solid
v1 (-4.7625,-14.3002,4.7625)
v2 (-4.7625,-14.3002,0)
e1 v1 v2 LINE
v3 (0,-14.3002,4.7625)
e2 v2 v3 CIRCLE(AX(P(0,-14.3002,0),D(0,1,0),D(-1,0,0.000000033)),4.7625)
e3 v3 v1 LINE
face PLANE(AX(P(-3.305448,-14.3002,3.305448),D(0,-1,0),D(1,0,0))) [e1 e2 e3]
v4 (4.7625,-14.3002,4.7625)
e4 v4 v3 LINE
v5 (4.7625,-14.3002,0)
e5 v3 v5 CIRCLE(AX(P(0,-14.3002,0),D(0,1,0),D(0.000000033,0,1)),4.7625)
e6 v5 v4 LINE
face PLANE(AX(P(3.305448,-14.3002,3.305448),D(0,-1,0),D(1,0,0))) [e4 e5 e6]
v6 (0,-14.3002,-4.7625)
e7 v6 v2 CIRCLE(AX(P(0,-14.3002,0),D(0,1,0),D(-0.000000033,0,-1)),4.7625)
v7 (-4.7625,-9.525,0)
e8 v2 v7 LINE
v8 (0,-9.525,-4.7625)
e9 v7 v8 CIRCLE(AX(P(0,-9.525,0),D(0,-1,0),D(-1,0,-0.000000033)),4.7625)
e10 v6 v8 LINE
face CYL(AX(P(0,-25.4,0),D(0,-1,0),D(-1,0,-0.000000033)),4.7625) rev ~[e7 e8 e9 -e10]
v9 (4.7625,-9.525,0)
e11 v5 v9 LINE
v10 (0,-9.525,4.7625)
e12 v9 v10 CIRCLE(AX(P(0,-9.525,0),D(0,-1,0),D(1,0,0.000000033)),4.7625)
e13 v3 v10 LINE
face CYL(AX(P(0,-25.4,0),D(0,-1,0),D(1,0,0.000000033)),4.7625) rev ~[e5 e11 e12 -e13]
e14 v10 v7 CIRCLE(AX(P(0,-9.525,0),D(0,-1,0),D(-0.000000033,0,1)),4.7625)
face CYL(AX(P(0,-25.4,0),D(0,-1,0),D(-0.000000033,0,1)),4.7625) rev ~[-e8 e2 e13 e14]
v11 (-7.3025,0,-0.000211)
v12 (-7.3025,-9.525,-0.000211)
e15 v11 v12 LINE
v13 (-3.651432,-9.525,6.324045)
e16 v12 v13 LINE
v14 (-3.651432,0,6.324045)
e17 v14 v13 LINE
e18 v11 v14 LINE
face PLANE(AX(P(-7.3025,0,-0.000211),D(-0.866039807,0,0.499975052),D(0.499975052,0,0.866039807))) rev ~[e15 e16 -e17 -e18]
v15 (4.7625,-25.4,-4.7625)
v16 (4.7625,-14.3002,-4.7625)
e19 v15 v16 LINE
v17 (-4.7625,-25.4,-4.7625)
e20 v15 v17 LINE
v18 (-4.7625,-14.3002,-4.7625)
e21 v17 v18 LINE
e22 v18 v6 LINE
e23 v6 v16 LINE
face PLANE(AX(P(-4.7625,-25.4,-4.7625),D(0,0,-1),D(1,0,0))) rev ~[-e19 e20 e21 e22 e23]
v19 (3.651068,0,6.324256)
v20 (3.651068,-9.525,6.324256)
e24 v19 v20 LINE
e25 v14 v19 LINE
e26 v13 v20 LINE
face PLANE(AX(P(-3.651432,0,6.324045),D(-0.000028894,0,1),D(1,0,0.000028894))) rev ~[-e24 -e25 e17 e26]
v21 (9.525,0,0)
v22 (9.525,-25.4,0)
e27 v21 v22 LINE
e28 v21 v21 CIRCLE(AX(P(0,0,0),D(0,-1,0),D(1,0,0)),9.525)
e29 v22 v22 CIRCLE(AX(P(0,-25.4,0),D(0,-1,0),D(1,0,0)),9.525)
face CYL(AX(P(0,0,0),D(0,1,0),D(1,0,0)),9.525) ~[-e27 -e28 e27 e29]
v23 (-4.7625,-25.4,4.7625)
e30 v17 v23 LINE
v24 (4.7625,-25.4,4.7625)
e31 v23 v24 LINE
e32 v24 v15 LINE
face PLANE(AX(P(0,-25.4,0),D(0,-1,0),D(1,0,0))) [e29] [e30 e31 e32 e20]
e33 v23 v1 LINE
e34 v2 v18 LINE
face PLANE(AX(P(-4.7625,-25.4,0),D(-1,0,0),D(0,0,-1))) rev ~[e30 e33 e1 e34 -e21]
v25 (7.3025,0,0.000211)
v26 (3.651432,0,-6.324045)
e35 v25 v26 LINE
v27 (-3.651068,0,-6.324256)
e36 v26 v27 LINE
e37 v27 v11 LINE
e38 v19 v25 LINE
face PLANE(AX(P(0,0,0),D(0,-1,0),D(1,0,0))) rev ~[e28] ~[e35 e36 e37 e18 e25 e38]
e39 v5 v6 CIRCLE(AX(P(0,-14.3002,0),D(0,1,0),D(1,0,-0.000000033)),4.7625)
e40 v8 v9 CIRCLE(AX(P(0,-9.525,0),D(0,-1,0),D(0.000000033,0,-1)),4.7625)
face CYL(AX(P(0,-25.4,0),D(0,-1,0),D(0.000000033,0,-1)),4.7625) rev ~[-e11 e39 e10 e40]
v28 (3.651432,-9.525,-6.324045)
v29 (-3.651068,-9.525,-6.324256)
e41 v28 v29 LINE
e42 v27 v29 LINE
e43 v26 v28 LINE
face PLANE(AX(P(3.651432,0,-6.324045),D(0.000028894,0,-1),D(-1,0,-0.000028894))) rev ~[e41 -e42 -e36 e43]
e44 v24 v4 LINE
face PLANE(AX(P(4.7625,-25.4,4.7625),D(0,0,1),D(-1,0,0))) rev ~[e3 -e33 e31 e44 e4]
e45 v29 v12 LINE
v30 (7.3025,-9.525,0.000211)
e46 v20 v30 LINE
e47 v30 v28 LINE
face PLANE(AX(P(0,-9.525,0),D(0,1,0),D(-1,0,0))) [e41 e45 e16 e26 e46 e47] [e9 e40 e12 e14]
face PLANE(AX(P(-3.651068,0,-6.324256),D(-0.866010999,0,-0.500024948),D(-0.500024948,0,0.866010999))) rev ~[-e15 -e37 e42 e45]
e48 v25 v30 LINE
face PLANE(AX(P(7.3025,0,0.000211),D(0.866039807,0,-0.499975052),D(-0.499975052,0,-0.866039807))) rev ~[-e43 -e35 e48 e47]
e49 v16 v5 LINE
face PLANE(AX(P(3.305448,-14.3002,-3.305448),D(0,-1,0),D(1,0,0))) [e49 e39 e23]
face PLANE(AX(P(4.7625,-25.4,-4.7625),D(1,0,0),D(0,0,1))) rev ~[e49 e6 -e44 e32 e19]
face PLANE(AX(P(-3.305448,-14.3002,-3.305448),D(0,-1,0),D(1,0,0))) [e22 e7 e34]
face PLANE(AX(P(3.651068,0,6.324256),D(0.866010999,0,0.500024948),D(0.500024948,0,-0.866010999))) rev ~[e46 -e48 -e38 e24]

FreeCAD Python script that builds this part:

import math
import FreeCAD as App
import Part
import Sketcher
Q = App.Units.Quantity


def add_polygon(sketch, points):
    """Adds a closed chain of lines whose ends are joined by coincident constraints."""
    first, n = sketch.GeometryCount, len(points)
    for a, b in zip(points, points[1:] + points[:1]):
        sketch.addGeometry(Part.LineSegment(App.Vector(*a, 0), App.Vector(*b, 0)), False)
    for i in range(n):
        sketch.addConstraint(Sketcher.Constraint("Coincident", first + i, 2, first + (i + 1) % n, 1))

doc = App.newDocument("Part")
params = doc.addObject("Spreadsheet::Sheet", "Params")
for row, (alias, value) in enumerate([
    ("sketch1_diameter", "0.75 in"),
    ("pad1_length", "1 in"),
    ("sketch2_radius", "0.1875 in"),
    ("sketch3_radius", "0.1875 in"),
    ("pocket2_length", "0.437 in"),
    ("pocket3_length", "0.375 in"),
], start=1):
    params.set(f"A{row}", alias)
    params.set(f"B{row}", "=" + value)
    params.setAlias(f"B{row}", alias)

body = doc.addObject("PartDesign::Body", "Body")

sketch1 = body.newObject("Sketcher::SketchObject", "Sketch")
sketch1.AttachmentSupport = (doc.getObject("XZ_Plane"), [""])
sketch1.MapMode = "FlatFace"
sketch1.addGeometry(Part.Circle(App.Vector(0, 0, 0), App.Vector(0, 0, 1), 10), False)
sketch1.addConstraint(Sketcher.Constraint("Coincident", 0, 3, -1, 1))
sketch1.addConstraint(Sketcher.Constraint("Diameter", 0, Q("0.75 in")))
sketch1.setExpression("Constraints[1]", "Params.sketch1_diameter")
pad1 = body.newObject("PartDesign::Pad", "Pad")
pad1.Profile = sketch1
pad1.setExpression("Length", "Params.pad1_length")

sketch2 = body.newObject("Sketcher::SketchObject", "Sketch001")
sketch2.AttachmentSupport = (doc.getObject("XZ_Plane"), [""])
sketch2.MapMode = "FlatFace"
sketch2.AttachmentOffset = App.Placement(App.Vector(0, 0, 1 * 25.4), App.Rotation())
sketch2.addGeometry(Part.ArcOfCircle(Part.Circle(App.Vector(0, 0, 0), App.Vector(0, 0, 1), 4.8), math.radians(-180), math.radians(-90)), False)
sketch2.addGeometry(Part.ArcOfCircle(Part.Circle(App.Vector(0, 0, 0), App.Vector(0, 0, 1), 4.8), math.radians(-90), math.radians(0)), False)
sketch2.addGeometry(Part.ArcOfCircle(Part.Circle(App.Vector(0, 0, 0), App.Vector(0, 0, 1), 4.8), math.radians(0), math.radians(90)), False)
sketch2.addGeometry(Part.ArcOfCircle(Part.Circle(App.Vector(0, 0, 0), App.Vector(0, 0, 1), 4.8), math.radians(90), math.radians(180)), False)
sketch2.addConstraint(Sketcher.Constraint("Tangent", 0, 2, 1, 1))
sketch2.addConstraint(Sketcher.Constraint("Tangent", 1, 2, 2, 1))
sketch2.addConstraint(Sketcher.Constraint("Tangent", 2, 2, 3, 1))
sketch2.addConstraint(Sketcher.Constraint("Tangent", 3, 2, 0, 1))
sketch2.addConstraint(Sketcher.Constraint("Coincident", 0, 3, -1, 1))
sketch2.addConstraint(Sketcher.Constraint("Equal", 0, 1))
sketch2.addConstraint(Sketcher.Constraint("PointOnObject", 0, 2, -2))
sketch2.addConstraint(Sketcher.Constraint("PointOnObject", 1, 2, -1))
sketch2.addConstraint(Sketcher.Constraint("PointOnObject", 2, 2, -2))
sketch2.addConstraint(Sketcher.Constraint("PointOnObject", 3, 2, -1))
sketch2.addConstraint(Sketcher.Constraint("Radius", 0, Q("0.1875 in")))
sketch2.setExpression("Constraints[10]", "Params.sketch2_radius")
pocket1 = body.newObject("PartDesign::Pocket", "Pocket")
pocket1.Profile = sketch2
pocket1.Type = "ThroughAll"

sketch3 = body.newObject("Sketcher::SketchObject", "Sketch002")
sketch3.AttachmentSupport = (doc.getObject("XZ_Plane"), [""])
sketch3.MapMode = "FlatFace"
sketch3.AttachmentOffset = App.Placement(App.Vector(0, 0, 1 * 25.4), App.Rotation())
sketch3.addGeometry(Part.LineSegment(App.Vector(0, -4.8, 0), App.Vector(4.8, -4.8, 0)), False)
sketch3.addGeometry(Part.LineSegment(App.Vector(4.8, -4.8, 0), App.Vector(4.8, 0, 0)), False)
sketch3.addGeometry(Part.ArcOfCircle(Part.Circle(App.Vector(0, 0, 0), App.Vector(0, 0, 1), 4.8), math.radians(-90), math.radians(0)), False)
sketch3.addGeometry(Part.LineSegment(App.Vector(-4.8, -4.8, 0), App.Vector(0, -4.8, 0)), False)
sketch3.addGeometry(Part.ArcOfCircle(Part.Circle(App.Vector(0, 0, 0), App.Vector(0, 0, 1), 4.8), math.radians(-180), math.radians(-90)), False)
sketch3.addGeometry(Part.LineSegment(App.Vector(-4.8, 0, 0), App.Vector(-4.8, -4.8, 0)), False)
sketch3.addGeometry(Part.ArcOfCircle(Part.Circle(App.Vector(0, 0, 0), App.Vector(0, 0, 1), 4.8), math.radians(0), math.radians(90)), False)
sketch3.addGeometry(Part.LineSegment(App.Vector(4.8, 0, 0), App.Vector(4.8, 4.8, 0)), False)
sketch3.addGeometry(Part.LineSegment(App.Vector(4.8, 4.8, 0), App.Vector(0, 4.8, 0)), False)
sketch3.addGeometry(Part.LineSegment(App.Vector(-4.8, 4.8, 0), App.Vector(-4.8, 0, 0)), False)
sketch3.addGeometry(Part.ArcOfCircle(Part.Circle(App.Vector(0, 0, 0), App.Vector(0, 0, 1), 4.8), math.radians(90), math.radians(180)), False)
sketch3.addGeometry(Part.LineSegment(App.Vector(0, 4.8, 0), App.Vector(-4.8, 4.8, 0)), False)
sketch3.addConstraint(Sketcher.Constraint("Coincident", 0, 2, 1, 1))
sketch3.addConstraint(Sketcher.Constraint("Tangent", 1, 2, 2, 2))
sketch3.addConstraint(Sketcher.Constraint("Tangent", 2, 1, 0, 1))
sketch3.addConstraint(Sketcher.Constraint("Tangent", 3, 2, 4, 2))
sketch3.addConstraint(Sketcher.Constraint("Tangent", 4, 1, 5, 1))
sketch3.addConstraint(Sketcher.Constraint("Coincident", 5, 2, 3, 1))
sketch3.addConstraint(Sketcher.Constraint("Tangent", 6, 1, 7, 1))
sketch3.addConstraint(Sketcher.Constraint("Coincident", 7, 2, 8, 1))
sketch3.addConstraint(Sketcher.Constraint("Tangent", 8, 2, 6, 2))
sketch3.addConstraint(Sketcher.Constraint("Tangent", 9, 2, 10, 2))
sketch3.addConstraint(Sketcher.Constraint("Tangent", 10, 1, 11, 1))
sketch3.addConstraint(Sketcher.Constraint("Coincident", 11, 2, 9, 1))
sketch3.addConstraint(Sketcher.Constraint("Horizontal", 0))
sketch3.addConstraint(Sketcher.Constraint("Vertical", 1))
sketch3.addConstraint(Sketcher.Constraint("Horizontal", 3))
sketch3.addConstraint(Sketcher.Constraint("Vertical", 5))
sketch3.addConstraint(Sketcher.Constraint("Vertical", 7))
sketch3.addConstraint(Sketcher.Constraint("Horizontal", 8))
sketch3.addConstraint(Sketcher.Constraint("Vertical", 9))
sketch3.addConstraint(Sketcher.Constraint("Horizontal", 11))
sketch3.addConstraint(Sketcher.Constraint("Coincident", 2, 3, -1, 1))
sketch3.addConstraint(Sketcher.Constraint("Coincident", 4, 3, -1, 1))
sketch3.addConstraint(Sketcher.Constraint("Coincident", 6, 3, -1, 1))
sketch3.addConstraint(Sketcher.Constraint("Coincident", 10, 3, -1, 1))
sketch3.addConstraint(Sketcher.Constraint("Equal", 2, 4))
sketch3.addConstraint(Sketcher.Constraint("Equal", 4, 6))
sketch3.addConstraint(Sketcher.Constraint("Equal", 6, 10))
sketch3.addConstraint(Sketcher.Constraint("Radius", 2, Q("0.1875 in")))
sketch3.setExpression("Constraints[27]", "Params.sketch3_radius")
pocket2 = body.newObject("PartDesign::Pocket", "Pocket001")
pocket2.Profile = sketch3
pocket2.setExpression("Length", "Params.pocket2_length")

sketch4 = body.newObject("Sketcher::SketchObject", "Sketch003")
sketch4.AttachmentSupport = (doc.getObject("XZ_Plane"), [""])
sketch4.MapMode = "FlatFace"
add_polygon(sketch4, [(-7, 0), (-4, 6), (4, 6), (7, 0), (4, -6), (-4, -6)])
sketch4.addConstraint(Sketcher.Constraint("Symmetric", 0, 2, 3, 2, -1, 1))
sketch4.addConstraint(Sketcher.Constraint("Symmetric", 1, 2, 4, 2, -1, 1))
sketch4.addConstraint(Sketcher.Constraint("Symmetric", 2, 2, 5, 2, -1, 1))
sketch4.addConstraint(Sketcher.Constraint("Equal", 0, 1))
sketch4.addConstraint(Sketcher.Constraint("Equal", 1, 2))
sketch4.addConstraint(Sketcher.Constraint("DistanceX", 5, 2, 2, 2, Q("0.575 in")))
sketch4.addConstraint(Sketcher.Constraint("Distance", 0, Q("0.2875 in")))
sketch4.addConstraint(Sketcher.Constraint("DistanceX", 0, 2, -1, 1, 3.651432))
sketch4.addConstraint(Sketcher.Constraint("DistanceY", -1, 1, 2, 2, 0.000211))
pocket3 = body.newObject("PartDesign::Pocket", "Pocket002")
pocket3.Profile = sketch4
pocket3.setExpression("Length", "Params.pocket3_length")
pocket3.Reversed = True

doc.recompute()
